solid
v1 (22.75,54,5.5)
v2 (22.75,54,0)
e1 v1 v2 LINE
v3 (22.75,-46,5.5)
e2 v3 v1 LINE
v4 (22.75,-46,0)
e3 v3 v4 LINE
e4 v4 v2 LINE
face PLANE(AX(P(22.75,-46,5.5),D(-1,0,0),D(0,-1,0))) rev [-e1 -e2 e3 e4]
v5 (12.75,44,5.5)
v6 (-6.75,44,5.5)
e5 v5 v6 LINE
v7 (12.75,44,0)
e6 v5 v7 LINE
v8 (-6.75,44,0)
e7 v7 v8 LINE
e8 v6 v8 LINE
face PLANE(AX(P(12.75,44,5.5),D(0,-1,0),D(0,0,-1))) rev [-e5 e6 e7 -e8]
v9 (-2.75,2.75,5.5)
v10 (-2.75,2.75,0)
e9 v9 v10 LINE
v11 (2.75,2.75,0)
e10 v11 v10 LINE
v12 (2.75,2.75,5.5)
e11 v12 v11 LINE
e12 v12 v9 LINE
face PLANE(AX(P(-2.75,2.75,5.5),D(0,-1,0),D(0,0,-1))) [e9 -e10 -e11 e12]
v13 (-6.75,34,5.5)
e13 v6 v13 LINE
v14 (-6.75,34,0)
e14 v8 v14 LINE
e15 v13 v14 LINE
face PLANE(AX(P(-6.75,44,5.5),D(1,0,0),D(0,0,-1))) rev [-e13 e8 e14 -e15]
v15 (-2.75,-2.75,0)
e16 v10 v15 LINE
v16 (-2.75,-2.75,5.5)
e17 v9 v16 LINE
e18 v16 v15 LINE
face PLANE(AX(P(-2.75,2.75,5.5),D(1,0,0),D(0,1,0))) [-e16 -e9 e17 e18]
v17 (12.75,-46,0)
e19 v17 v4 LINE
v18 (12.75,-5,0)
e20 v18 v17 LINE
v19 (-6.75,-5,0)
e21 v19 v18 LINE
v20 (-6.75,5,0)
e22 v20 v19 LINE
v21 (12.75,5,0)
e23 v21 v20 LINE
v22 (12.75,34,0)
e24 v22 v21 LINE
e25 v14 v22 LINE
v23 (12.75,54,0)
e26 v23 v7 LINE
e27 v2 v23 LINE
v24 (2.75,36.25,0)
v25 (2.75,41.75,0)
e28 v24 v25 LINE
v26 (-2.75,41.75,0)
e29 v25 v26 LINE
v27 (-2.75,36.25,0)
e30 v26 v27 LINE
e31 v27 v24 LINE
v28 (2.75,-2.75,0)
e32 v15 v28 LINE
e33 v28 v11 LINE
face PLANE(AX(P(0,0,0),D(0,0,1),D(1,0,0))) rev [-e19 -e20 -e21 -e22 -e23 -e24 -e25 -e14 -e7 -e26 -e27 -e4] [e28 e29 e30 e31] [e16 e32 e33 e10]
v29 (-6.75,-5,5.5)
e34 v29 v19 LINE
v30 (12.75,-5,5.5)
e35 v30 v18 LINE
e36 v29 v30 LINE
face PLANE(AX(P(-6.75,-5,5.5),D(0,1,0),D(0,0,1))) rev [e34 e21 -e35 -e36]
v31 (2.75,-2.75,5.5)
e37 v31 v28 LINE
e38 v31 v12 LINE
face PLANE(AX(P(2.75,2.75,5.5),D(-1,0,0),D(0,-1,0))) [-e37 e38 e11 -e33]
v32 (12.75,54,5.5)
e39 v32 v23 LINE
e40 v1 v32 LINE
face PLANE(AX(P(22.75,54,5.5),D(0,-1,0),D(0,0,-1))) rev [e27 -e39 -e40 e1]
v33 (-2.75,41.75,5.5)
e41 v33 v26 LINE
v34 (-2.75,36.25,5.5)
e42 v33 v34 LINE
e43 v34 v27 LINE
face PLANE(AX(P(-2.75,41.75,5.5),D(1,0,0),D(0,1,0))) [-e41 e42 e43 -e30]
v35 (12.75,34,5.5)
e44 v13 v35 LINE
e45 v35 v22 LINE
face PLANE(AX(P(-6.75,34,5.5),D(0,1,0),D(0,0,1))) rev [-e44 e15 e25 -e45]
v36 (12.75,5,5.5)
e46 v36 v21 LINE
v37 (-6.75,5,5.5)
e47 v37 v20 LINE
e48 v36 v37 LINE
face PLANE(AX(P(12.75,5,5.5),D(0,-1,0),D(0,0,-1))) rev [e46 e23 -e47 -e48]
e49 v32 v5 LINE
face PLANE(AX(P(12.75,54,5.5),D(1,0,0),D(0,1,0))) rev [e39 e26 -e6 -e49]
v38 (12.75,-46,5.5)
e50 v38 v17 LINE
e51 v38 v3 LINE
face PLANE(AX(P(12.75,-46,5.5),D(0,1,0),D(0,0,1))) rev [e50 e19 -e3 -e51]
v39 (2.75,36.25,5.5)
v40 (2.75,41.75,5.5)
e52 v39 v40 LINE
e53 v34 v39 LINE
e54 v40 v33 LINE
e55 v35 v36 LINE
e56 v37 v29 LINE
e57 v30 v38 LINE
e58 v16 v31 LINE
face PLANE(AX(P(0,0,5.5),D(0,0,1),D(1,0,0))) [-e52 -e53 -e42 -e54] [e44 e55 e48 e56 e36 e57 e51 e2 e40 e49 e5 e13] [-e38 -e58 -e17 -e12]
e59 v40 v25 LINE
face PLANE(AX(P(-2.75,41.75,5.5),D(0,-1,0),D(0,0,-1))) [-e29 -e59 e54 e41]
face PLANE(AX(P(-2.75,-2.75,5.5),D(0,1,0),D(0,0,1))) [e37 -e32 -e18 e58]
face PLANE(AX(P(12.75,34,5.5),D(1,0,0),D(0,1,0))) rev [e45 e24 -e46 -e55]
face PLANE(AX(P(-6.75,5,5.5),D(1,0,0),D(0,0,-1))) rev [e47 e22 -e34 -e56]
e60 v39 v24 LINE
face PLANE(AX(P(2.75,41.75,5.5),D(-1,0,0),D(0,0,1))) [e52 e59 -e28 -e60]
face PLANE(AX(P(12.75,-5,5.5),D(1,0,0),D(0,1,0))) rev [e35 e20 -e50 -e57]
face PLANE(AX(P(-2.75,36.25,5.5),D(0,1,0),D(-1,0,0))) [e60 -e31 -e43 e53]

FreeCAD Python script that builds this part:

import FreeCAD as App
import Part
import Sketcher

V = App.Vector
Q = App.Units.Quantity

doc = App.newDocument("Part")
body = doc.addObject("PartDesign::Body", "Body")

# Sketch on XY plane
sketch1 = doc.addObject("Sketcher::SketchObject", "Sketch")
body.addObject(sketch1)
sketch1.AttachmentSupport = (doc.XY_Plane, [""])
sketch1.MapMode = "FlatFace"
sketch1.addGeometry(Part.LineSegment(V(-6.75, 5, 0), V(-6.75, -5, 0)), False)
sketch1.addGeometry(Part.LineSegment(V(-6.75, -5, 0), V(12.75, -5, 0)), False)
sketch1.addGeometry(Part.LineSegment(V(12.75, -5, 0), V(12.75, -46, 0)), False)
sketch1.addGeometry(Part.LineSegment(V(12.75, -46, 0), V(22.75, -46, 0)), False)
sketch1.addGeometry(Part.LineSegment(V(22.75, -46, 0), V(22.75, 54, 0)), False)
sketch1.addGeometry(Part.LineSegment(V(22.75, 54, 0), V(12.75, 54, 0)), False)
sketch1.addGeometry(Part.LineSegment(V(12.75, 54, 0), V(12.75, 44, 0)), False)
sketch1.addGeometry(Part.LineSegment(V(12.75, 44, 0), V(-6.75, 44, 0)), False)
sketch1.addGeometry(Part.LineSegment(V(-6.75, 44, 0), V(-6.75, 34, 0)), False)
sketch1.addGeometry(Part.LineSegment(V(-6.75, 34, 0), V(12.75, 34, 0)), False)
sketch1.addGeometry(Part.LineSegment(V(12.75, 34, 0), V(12.75, 5, 0)), False)
sketch1.addGeometry(Part.LineSegment(V(12.75, 5, 0), V(-6.75, 5, 0)), False)
sketch1.addGeometry(Part.LineSegment(V(2.75, -2.75, 0), V(-2.75, -2.75, 0)), False)
sketch1.addGeometry(Part.LineSegment(V(-2.75, -2.75, 0), V(-2.75, 2.75, 0)), False)
sketch1.addGeometry(Part.LineSegment(V(-2.75, 2.75, 0), V(2.75, 2.75, 0)), False)
sketch1.addGeometry(Part.LineSegment(V(2.75, 2.75, 0), V(2.75, -2.75, 0)), False)
sketch1.addGeometry(Part.LineSegment(V(2.75, 36.25, 0), V(-2.75, 36.25, 0)), False)
sketch1.addGeometry(Part.LineSegment(V(-2.75, 36.25, 0), V(-2.75, 41.75, 0)), False)
sketch1.addGeometry(Part.LineSegment(V(-2.75, 41.75, 0), V(2.75, 41.75, 0)), False)
sketch1.addGeometry(Part.LineSegment(V(2.75, 41.75, 0), V(2.75, 36.25, 0)), False)
sketch1.addConstraint(Sketcher.Constraint("Coincident", 0, 2, 1, 1))
sketch1.addConstraint(Sketcher.Constraint("Coincident", 1, 2, 2, 1))
sketch1.addConstraint(Sketcher.Constraint("Coincident", 2, 2, 3, 1))
sketch1.addConstraint(Sketcher.Constraint("Coincident", 3, 2, 4, 1))
sketch1.addConstraint(Sketcher.Constraint("Coincident", 4, 2, 5, 1))
sketch1.addConstraint(Sketcher.Constraint("Coincident", 5, 2, 6, 1))
sketch1.addConstraint(Sketcher.Constraint("Coincident", 6, 2, 7, 1))
sketch1.addConstraint(Sketcher.Constraint("Coincident", 7, 2, 8, 1))
sketch1.addConstraint(Sketcher.Constraint("Coincident", 8, 2, 9, 1))
sketch1.addConstraint(Sketcher.Constraint("Coincident", 9, 2, 10, 1))
sketch1.addConstraint(Sketcher.Constraint("Coincident", 10, 2, 11, 1))
sketch1.addConstraint(Sketcher.Constraint("Coincident", 11, 2, 0, 1))
sketch1.addConstraint(Sketcher.Constraint("Coincident", 12, 2, 13, 1))
sketch1.addConstraint(Sketcher.Constraint("Coincident", 13, 2, 14, 1))
sketch1.addConstraint(Sketcher.Constraint("Coincident", 14, 2, 15, 1))
sketch1.addConstraint(Sketcher.Constraint("Coincident", 15, 2, 12, 1))
sketch1.addConstraint(Sketcher.Constraint("Coincident", 16, 2, 17, 1))
sketch1.addConstraint(Sketcher.Constraint("Coincident", 17, 2, 18, 1))
sketch1.addConstraint(Sketcher.Constraint("Coincident", 18, 2, 19, 1))
sketch1.addConstraint(Sketcher.Constraint("Coincident", 19, 2, 16, 1))
sketch1.addConstraint(Sketcher.Constraint("Vertical", 0))
sketch1.addConstraint(Sketcher.Constraint("Horizontal", 1))
sketch1.addConstraint(Sketcher.Constraint("Vertical", 2))
sketch1.addConstraint(Sketcher.Constraint("Horizontal", 3))
sketch1.addConstraint(Sketcher.Constraint("Vertical", 4))
sketch1.addConstraint(Sketcher.Constraint("Horizontal", 5))
sketch1.addConstraint(Sketcher.Constraint("Vertical", 6))
sketch1.addConstraint(Sketcher.Constraint("Horizontal", 7))
sketch1.addConstraint(Sketcher.Constraint("Vertical", 8))
sketch1.addConstraint(Sketcher.Constraint("Horizontal", 9))
sketch1.addConstraint(Sketcher.Constraint("Vertical", 10))
sketch1.addConstraint(Sketcher.Constraint("Horizontal", 11))
sketch1.addConstraint(Sketcher.Constraint("Horizontal", 12))
sketch1.addConstraint(Sketcher.Constraint("Vertical", 13))
sketch1.addConstraint(Sketcher.Constraint("Horizontal", 14))
sketch1.addConstraint(Sketcher.Constraint("Vertical", 15))
sketch1.addConstraint(Sketcher.Constraint("Horizontal", 16))
sketch1.addConstraint(Sketcher.Constraint("Vertical", 17))
sketch1.addConstraint(Sketcher.Constraint("Horizontal", 18))
sketch1.addConstraint(Sketcher.Constraint("Vertical", 19))
sketch1.addConstraint(Sketcher.Constraint("Symmetric", 12, 2, 14, 2, -1, 1))
sketch1.addConstraint(Sketcher.Constraint("Symmetric", 1, 2, 10, 2, -1))
sketch1.addConstraint(Sketcher.Constraint("Vertical", 2, 2, 5, 2))
sketch1.addConstraint(Sketcher.Constraint("Vertical", 0, 2, 7, 2))
sketch1.addConstraint(Sketcher.Constraint("Vertical", 13, 2, 16, 2))
sketch1.addConstraint(Sketcher.Constraint("Vertical", 15, 2, 18, 2))
sketch1.addConstraint(Sketcher.Constraint("Equal", 5, 0))
sketch1.addConstraint(Sketcher.Constraint("Equal", 0, 6))
sketch1.addConstraint(Sketcher.Constraint("Equal", 6, 8))
sketch1.addConstraint(Sketcher.Constraint("Equal", 18, 13))
sketch1.addConstraint(Sketcher.Constraint("Equal", 15, 17))
sketch1.addConstraint(Sketcher.Constraint("DistanceX", 3, 1, 3, 2, Q("10 mm")))
sketch1.addConstraint(Sketcher.Constraint("DistanceY", 2, 2, 2, 1, Q("41 mm")))
sketch1.addConstraint(Sketcher.Constraint("DistanceY", 4, 1, 4, 2, Q("100 mm")))
sketch1.addConstraint(Sketcher.Constraint("DistanceX", 1, 1, 1, 2, Q("19.5 mm")))
sketch1.addConstraint(Sketcher.Constraint("DistanceX", 12, 2, 12, 1, Q("5.5 mm")))
sketch1.addConstraint(Sketcher.Constraint("DistanceX", 0, 2, 12, 2, Q("4 mm")))
sketch1.addConstraint(Sketcher.Constraint("DistanceY", -1, 1, 16, 2, Q("36.25 mm")))
pad1 = doc.addObject("PartDesign::Pad", "Pad")
body.addObject(pad1)
pad1.Profile = sketch1
pad1.Length = 5.5

doc.recompute()
